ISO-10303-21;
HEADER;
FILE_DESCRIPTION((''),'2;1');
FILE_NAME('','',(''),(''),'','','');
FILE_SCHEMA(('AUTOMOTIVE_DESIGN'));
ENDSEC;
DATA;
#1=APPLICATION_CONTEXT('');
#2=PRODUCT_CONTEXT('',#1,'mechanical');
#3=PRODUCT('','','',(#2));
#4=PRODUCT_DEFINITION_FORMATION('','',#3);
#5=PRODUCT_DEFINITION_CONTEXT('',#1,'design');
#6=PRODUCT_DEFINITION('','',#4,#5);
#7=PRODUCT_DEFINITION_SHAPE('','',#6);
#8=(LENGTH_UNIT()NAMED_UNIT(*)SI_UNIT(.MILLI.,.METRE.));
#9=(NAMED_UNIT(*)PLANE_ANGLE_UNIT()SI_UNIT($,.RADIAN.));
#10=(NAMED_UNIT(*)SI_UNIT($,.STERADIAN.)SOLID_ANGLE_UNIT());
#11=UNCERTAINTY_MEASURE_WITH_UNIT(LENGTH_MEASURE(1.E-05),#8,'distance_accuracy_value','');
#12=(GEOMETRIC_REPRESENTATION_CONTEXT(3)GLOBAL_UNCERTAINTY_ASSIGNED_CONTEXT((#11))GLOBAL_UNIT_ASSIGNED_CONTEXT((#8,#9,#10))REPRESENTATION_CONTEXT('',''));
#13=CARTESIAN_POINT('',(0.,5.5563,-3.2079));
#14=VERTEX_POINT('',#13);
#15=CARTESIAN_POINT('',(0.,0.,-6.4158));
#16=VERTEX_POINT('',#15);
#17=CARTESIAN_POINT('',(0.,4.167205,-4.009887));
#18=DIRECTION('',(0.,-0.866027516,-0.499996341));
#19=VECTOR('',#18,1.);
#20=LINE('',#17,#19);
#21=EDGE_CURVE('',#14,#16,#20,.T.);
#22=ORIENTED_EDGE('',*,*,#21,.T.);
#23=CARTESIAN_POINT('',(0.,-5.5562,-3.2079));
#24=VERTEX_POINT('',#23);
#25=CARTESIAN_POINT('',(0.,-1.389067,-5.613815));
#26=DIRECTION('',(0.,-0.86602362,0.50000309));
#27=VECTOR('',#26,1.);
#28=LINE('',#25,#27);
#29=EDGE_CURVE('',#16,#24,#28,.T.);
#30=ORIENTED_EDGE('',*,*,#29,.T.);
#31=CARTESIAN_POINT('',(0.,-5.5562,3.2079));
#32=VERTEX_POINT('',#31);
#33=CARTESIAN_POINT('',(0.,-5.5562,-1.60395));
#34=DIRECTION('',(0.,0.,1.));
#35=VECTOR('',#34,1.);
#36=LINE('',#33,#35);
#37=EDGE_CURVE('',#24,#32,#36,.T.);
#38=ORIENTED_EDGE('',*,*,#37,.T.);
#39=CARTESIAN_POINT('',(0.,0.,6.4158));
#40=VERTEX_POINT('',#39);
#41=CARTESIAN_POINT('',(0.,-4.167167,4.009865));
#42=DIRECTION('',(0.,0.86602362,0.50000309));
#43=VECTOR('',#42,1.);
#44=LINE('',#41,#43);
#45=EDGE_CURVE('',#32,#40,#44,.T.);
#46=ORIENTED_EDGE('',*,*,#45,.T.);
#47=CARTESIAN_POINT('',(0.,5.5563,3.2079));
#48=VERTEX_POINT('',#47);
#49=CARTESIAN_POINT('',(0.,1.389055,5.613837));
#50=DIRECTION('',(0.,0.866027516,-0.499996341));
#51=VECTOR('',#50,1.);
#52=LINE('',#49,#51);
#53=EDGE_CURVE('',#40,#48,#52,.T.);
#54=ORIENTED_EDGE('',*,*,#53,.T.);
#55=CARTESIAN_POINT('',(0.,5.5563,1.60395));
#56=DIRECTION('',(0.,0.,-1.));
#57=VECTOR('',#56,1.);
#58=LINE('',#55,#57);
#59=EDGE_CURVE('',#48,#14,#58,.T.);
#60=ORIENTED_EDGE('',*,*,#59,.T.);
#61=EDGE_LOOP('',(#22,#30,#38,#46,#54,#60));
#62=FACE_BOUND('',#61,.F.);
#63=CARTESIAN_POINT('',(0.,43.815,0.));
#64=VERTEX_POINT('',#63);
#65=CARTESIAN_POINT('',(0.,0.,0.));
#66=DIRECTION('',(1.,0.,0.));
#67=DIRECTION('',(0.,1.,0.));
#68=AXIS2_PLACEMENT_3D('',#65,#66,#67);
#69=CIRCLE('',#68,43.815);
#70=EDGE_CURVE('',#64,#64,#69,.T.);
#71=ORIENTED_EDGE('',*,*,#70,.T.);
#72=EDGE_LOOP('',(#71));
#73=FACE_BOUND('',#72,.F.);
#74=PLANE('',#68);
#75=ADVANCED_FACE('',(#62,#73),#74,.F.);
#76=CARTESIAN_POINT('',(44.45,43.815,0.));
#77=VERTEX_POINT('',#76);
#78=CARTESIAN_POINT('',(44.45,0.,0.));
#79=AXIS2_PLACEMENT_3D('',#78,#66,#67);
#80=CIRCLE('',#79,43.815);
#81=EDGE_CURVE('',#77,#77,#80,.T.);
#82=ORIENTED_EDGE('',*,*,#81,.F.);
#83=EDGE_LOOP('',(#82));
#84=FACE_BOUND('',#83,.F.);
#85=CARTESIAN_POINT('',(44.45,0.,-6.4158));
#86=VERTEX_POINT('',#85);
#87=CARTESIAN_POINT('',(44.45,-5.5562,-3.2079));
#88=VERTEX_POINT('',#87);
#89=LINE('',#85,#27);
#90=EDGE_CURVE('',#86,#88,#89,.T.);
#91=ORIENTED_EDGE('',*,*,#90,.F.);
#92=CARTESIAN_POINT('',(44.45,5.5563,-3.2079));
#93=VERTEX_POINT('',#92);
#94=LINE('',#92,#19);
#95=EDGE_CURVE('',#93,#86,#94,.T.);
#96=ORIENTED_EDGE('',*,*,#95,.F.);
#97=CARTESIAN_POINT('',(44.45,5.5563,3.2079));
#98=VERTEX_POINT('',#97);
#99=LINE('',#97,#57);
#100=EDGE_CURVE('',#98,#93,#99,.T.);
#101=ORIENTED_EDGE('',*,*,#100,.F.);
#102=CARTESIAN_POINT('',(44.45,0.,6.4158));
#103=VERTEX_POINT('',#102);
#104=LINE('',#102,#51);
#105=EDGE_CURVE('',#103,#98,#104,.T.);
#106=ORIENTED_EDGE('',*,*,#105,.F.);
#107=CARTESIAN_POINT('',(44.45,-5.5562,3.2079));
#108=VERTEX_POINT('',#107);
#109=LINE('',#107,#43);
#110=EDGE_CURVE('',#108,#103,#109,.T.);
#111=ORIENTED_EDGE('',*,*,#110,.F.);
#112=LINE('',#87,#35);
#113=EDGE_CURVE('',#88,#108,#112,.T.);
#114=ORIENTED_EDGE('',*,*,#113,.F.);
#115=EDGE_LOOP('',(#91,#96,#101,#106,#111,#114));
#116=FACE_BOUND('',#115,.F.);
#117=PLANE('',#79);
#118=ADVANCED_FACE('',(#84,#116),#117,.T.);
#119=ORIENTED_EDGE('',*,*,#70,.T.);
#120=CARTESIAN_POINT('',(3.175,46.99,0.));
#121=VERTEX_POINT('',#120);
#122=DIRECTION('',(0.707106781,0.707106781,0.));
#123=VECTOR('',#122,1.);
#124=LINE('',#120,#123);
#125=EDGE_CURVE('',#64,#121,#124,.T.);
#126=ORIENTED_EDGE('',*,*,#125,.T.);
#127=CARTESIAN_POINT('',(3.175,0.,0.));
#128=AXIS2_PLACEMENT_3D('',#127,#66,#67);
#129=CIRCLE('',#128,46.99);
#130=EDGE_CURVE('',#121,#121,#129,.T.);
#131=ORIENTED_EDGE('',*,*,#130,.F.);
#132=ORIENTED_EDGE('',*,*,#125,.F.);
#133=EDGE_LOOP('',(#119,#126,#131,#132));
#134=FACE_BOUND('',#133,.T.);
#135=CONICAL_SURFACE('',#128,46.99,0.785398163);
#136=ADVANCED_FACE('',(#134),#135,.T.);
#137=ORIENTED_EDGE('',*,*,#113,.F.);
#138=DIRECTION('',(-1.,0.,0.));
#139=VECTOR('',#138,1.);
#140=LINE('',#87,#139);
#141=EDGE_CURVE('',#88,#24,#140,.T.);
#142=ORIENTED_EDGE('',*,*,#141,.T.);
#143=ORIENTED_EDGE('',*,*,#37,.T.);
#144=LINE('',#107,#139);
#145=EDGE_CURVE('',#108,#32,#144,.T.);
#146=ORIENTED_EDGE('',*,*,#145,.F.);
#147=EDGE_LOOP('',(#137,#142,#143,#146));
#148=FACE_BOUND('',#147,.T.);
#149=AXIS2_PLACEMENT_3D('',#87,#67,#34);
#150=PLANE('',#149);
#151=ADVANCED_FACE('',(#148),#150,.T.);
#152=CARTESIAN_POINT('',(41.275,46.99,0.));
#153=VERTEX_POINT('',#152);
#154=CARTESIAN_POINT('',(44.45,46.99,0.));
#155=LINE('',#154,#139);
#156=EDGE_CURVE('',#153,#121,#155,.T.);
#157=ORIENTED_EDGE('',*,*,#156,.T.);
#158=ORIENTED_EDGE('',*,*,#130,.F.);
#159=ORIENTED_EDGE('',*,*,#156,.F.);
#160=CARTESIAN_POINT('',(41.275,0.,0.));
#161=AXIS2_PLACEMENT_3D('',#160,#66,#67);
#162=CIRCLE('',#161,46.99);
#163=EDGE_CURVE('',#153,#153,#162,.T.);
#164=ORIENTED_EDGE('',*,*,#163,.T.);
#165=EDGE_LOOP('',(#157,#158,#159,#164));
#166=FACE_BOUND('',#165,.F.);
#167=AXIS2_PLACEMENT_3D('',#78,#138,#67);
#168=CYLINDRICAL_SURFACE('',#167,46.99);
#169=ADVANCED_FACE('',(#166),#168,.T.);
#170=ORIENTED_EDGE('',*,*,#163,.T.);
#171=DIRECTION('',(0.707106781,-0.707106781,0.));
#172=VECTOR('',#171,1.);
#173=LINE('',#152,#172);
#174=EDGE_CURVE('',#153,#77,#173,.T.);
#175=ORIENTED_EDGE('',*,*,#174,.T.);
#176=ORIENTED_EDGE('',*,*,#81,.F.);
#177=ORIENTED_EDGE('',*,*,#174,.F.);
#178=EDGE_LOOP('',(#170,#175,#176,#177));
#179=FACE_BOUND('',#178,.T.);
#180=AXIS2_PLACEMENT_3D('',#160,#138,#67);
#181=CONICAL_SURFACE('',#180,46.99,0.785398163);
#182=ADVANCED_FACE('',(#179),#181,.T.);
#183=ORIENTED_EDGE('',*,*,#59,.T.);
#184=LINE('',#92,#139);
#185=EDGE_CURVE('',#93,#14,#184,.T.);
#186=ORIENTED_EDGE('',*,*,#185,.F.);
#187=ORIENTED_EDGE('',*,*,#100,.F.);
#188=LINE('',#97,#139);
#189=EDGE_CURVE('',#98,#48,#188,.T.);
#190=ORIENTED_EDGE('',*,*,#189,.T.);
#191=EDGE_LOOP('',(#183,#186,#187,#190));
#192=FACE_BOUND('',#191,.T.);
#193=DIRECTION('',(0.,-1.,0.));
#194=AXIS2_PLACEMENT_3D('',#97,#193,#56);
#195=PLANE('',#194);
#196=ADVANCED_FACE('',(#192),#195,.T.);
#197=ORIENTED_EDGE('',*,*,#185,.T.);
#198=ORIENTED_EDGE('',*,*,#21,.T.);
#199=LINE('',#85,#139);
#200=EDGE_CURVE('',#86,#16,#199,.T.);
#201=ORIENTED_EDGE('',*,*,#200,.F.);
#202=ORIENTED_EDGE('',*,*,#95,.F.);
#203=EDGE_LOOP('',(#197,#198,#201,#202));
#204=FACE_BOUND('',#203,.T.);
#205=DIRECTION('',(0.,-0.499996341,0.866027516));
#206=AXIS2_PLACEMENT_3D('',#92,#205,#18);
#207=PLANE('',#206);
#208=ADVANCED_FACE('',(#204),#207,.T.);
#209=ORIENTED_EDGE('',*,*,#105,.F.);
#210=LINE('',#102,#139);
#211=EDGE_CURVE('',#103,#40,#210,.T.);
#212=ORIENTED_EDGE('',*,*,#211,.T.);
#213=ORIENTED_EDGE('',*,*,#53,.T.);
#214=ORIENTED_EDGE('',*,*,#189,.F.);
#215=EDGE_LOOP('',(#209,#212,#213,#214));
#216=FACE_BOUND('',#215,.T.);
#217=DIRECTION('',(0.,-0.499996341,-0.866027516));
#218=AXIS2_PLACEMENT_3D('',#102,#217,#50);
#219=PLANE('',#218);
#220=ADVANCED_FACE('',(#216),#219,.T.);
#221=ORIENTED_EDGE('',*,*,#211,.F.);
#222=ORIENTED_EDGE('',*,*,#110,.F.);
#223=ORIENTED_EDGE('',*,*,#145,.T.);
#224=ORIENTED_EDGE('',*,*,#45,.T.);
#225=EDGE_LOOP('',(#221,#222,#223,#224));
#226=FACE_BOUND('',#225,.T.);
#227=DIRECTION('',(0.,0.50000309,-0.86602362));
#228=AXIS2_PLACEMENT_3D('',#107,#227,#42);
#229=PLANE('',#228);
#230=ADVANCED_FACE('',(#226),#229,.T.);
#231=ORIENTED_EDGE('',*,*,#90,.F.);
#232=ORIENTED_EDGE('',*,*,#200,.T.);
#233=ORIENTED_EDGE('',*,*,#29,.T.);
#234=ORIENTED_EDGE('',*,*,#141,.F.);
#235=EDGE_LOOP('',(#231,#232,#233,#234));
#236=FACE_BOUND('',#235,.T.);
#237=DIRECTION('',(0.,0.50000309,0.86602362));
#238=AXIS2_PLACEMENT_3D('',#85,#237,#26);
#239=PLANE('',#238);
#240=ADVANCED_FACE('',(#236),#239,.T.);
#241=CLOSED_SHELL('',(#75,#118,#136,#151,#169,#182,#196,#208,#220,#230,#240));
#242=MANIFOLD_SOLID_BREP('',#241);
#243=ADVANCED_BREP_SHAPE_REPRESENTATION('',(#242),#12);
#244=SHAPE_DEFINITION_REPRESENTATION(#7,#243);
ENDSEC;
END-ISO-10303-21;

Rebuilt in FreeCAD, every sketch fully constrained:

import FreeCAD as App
import Part
import Sketcher
from FreeCAD import Vector
Q = App.Units.Quantity


def edges_at(feature, points):
    """Names of the edges that pass closest to the given points."""
    edges = feature.Shape.Edges
    near = lambda p: min(range(len(edges)), key=lambda i: edges[i].distToShape(Part.Vertex(*p))[0])
    return sorted({f"Edge{near(p) + 1}" for p in points})


def add_polygon(sketch, points):
    """Adds a closed chain of lines whose ends are joined by coincident constraints."""
    first, n = sketch.GeometryCount, len(points)
    for a, b in zip(points, points[1:] + points[:1]):
        sketch.addGeometry(Part.LineSegment(App.Vector(*a, 0), App.Vector(*b, 0)), False)
    for i in range(n):
        sketch.addConstraint(Sketcher.Constraint("Coincident", first + i, 2, first + (i + 1) % n, 1))

doc = App.newDocument("Part")
body = doc.addObject("PartDesign::Body", "Body")

# Sketch on XY plane
sketch1 = body.newObject("Sketcher::SketchObject", "Sketch")
sketch1.AttachmentSupport = (doc.getObject("XY_Plane"), [""])
sketch1.MapMode = "FlatFace"
add_polygon(sketch1, [(0, 46.99), (0, 0), (44.45, 0), (44.45, 46.99)])  # lines 0-3
sketch1.addConstraint([
    Sketcher.Constraint("Vertical", 0),
    Sketcher.Constraint("Horizontal", 1),
    Sketcher.Constraint("Vertical", 2),
    Sketcher.Constraint("Horizontal", 3),
    Sketcher.Constraint("Coincident", 0, 2, -1, 1),
    Sketcher.Constraint("DistanceX", 1, 1, 1, 2, Q("1.75 in")),
    Sketcher.Constraint("DistanceY", 0, 2, 0, 1, Q("1.85 in")),
])
revolution = body.newObject("PartDesign::Revolution", "Revolution")
revolution.Profile = sketch1
revolution.ReferenceAxis = (sketch1, ["H_Axis"])
revolution.Angle = 360
doc.recompute()

chamfer = body.newObject("PartDesign::Chamfer", "Chamfer")
chamfer.Base = (revolution, edges_at(revolution, [(44.45, -46.99, 0), (0, -46.99, 0)]))
chamfer.Size = Q("0.125 in")

# Sketch on YZ plane
sketch2 = body.newObject("Sketcher::SketchObject", "Sketch001")
sketch2.AttachmentSupport = (doc.getObject("YZ_Plane"), [""])
sketch2.MapMode = "FlatFace"
sketch2.AttachmentOffset = App.Placement(Vector(0, 0, 1.75 * 25.4), App.Rotation())
add_polygon(sketch2, [(-5.5562, -3.2079), (0, -6.4158), (5.5563, -3.2079), (5.5563, 3.2079), (0, 6.4158), (-5.5562, 3.2079)])  # lines 0-5
sketch2.addConstraint([
    Sketcher.Constraint("Vertical", 2),
    Sketcher.Constraint("Vertical", 5),
    Sketcher.Constraint("Symmetric", 0, 2, 3, 2, -1, 1),
    Sketcher.Constraint("Symmetric", 1, 2, 4, 2, -1, 1),
    Sketcher.Constraint("PointOnObject", 0, 2, -2),
    Sketcher.Constraint("Parallel", 0, 3),
    Sketcher.Constraint("Horizontal", 2, 2, 4, 2),
    Sketcher.Constraint("Angle", 0, Q("-30.0002 deg")),
    Sketcher.Constraint("DistanceX", 4, 2, 2, 2, Q("0.4375 in")),
    Sketcher.Constraint("DistanceY", 2, 1, 2, 2, Q("0.2526 in")),
])
pocket1 = body.newObject("PartDesign::Pocket", "Pocket")
pocket1.Profile = sketch2
pocket1.Type = "ThroughAll"

doc.recompute()
